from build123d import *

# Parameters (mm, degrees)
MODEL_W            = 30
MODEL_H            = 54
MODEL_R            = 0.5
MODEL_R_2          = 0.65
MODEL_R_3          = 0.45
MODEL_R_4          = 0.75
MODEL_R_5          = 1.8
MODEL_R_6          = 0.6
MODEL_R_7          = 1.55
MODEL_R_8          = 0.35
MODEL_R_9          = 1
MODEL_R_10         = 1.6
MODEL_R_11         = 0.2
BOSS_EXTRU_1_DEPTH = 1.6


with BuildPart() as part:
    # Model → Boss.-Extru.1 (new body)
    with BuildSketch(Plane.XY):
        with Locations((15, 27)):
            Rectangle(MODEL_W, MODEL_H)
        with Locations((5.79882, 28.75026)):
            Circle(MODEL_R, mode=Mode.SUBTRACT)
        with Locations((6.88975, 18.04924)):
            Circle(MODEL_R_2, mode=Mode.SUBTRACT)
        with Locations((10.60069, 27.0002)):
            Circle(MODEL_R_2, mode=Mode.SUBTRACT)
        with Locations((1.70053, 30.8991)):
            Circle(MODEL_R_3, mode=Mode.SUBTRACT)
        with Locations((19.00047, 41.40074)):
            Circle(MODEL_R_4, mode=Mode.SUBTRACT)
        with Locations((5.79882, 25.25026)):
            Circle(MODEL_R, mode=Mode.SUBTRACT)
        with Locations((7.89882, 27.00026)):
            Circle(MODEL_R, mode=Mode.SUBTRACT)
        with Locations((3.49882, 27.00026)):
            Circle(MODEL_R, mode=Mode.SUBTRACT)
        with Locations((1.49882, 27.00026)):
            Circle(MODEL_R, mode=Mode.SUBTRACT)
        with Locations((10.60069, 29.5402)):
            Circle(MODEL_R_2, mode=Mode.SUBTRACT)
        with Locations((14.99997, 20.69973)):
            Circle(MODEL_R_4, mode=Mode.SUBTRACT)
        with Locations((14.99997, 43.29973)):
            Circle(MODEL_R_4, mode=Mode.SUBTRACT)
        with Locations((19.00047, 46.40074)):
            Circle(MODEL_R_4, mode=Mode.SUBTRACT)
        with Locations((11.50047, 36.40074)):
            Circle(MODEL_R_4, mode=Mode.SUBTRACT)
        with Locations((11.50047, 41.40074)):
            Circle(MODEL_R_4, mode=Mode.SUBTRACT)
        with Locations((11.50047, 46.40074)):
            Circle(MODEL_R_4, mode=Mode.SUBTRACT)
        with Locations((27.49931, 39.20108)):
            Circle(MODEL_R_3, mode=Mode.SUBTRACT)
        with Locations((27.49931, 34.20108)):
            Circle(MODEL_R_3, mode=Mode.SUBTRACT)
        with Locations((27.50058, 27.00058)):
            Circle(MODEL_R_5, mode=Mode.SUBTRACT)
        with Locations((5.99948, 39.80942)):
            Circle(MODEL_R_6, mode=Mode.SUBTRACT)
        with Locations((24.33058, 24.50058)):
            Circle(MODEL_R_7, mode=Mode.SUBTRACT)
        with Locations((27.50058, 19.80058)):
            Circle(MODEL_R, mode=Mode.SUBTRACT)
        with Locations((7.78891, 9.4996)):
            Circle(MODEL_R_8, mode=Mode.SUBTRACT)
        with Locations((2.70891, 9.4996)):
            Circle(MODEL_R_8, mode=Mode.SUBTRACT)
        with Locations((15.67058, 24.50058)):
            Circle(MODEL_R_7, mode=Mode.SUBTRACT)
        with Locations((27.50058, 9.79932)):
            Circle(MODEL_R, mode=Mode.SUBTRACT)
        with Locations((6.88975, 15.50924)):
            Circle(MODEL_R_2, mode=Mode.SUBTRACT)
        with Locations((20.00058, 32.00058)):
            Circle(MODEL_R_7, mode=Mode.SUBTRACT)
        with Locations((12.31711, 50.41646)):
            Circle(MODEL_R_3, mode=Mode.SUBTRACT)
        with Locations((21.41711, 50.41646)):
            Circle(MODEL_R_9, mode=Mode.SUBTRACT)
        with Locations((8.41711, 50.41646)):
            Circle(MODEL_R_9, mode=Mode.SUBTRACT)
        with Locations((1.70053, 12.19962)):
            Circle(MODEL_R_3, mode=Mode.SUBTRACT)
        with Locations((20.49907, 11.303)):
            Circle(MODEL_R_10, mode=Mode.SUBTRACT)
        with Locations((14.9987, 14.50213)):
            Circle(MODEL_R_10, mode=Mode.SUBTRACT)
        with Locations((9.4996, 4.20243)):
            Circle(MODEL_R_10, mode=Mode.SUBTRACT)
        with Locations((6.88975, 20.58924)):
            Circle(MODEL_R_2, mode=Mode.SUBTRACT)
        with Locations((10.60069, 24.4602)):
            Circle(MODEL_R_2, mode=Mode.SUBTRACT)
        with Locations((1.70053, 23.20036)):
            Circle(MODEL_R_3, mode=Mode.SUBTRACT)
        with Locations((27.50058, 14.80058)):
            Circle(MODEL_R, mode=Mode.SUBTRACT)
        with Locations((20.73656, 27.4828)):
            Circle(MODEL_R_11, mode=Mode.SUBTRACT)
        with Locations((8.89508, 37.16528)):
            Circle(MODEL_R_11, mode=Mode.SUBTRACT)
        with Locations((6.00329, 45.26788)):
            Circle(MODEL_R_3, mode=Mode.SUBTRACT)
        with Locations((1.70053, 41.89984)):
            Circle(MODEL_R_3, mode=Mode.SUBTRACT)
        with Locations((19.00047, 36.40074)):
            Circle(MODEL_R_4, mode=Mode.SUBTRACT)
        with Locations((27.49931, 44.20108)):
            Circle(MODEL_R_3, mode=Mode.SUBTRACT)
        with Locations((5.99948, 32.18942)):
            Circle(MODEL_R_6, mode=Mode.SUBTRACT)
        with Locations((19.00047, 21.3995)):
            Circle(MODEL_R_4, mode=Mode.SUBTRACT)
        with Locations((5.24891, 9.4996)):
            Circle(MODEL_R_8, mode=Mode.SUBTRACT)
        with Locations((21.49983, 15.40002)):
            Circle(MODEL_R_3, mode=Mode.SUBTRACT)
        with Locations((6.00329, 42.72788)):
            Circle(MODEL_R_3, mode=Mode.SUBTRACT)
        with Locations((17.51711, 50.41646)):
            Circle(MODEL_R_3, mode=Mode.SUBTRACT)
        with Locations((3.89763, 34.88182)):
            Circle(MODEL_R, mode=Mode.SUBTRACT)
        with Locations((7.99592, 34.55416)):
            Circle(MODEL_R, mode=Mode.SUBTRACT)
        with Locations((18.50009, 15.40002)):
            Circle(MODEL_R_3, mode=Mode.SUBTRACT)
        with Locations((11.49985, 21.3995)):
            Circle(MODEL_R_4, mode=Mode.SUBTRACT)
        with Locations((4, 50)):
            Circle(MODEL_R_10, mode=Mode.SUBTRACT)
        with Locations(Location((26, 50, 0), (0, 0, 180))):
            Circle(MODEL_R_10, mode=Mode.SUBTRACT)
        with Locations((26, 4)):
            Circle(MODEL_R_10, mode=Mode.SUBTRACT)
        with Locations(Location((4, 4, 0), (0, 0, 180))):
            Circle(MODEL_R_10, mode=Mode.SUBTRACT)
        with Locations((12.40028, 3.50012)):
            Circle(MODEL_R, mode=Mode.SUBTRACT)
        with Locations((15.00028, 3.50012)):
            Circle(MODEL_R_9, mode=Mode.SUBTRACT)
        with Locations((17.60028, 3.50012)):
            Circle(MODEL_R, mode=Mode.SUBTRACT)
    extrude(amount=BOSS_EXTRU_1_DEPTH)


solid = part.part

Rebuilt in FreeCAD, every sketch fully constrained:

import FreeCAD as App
import Part
import Sketcher
from FreeCAD import Vector

doc = App.newDocument("Part")
body = doc.addObject("PartDesign::Body", "Body")

sketch1 = body.newObject("Sketcher::SketchObject", "Sketch")
sketch1.AttachmentSupport = (doc.getObject("XY_Plane"), [""])
sketch1.MapMode = "FlatFace"
sketch1.addGeometry([
    Part.LineSegment(Vector(0, 54, 0), Vector(0, 0, 0)),
    Part.LineSegment(Vector(0, 0, 0), Vector(30, 0, 0)),
    Part.LineSegment(Vector(30, 0, 0), Vector(30, 54, 0)),
    Part.LineSegment(Vector(30, 54, 0), Vector(0, 54, 0)),
    Part.Circle(Vector(4, 4, 0), Vector(0, 0, 1), 1.6),
    Part.Circle(Vector(2.71, 9.5, 0), Vector(0, 0, 1), 0.35),
    Part.Circle(Vector(1.7, 12.2, 0), Vector(0, 0, 1), 0.45),
    Part.Circle(Vector(5.25, 9.5, 0), Vector(0, 0, 1), 0.35),
    Part.Circle(Vector(7.79, 9.5, 0), Vector(0, 0, 1), 0.35),
    Part.Circle(Vector(9.5, 4.2, 0), Vector(0, 0, 1), 1.6),
    Part.Circle(Vector(12.4, 3.5, 0), Vector(0, 0, 1), 0.5),
    Part.Circle(Vector(15, 3.5, 0), Vector(0, 0, 1), 1),
    Part.Circle(Vector(15, 14.5, 0), Vector(0, 0, 1), 1.6),
    Part.Circle(Vector(6.89, 15.51, 0), Vector(0, 0, 1), 0.65),
    Part.Circle(Vector(6.89, 18.05, 0), Vector(0, 0, 1), 0.65),
    Part.Circle(Vector(6.89, 20.59, 0), Vector(0, 0, 1), 0.65),
    Part.Circle(Vector(1.7, 23.2, 0), Vector(0, 0, 1), 0.45),
    Part.Circle(Vector(5.8, 25.25, 0), Vector(0, 0, 1), 0.5),
    Part.Circle(Vector(15, 20.7, 0), Vector(0, 0, 1), 0.75),
    Part.Circle(Vector(11.5, 21.4, 0), Vector(0, 0, 1), 0.75),
    Part.Circle(Vector(10.6, 24.46, 0), Vector(0, 0, 1), 0.65),
    Part.Circle(Vector(17.6, 3.5, 0), Vector(0, 0, 1), 0.5),
    Part.Circle(Vector(20.5, 11.3, 0), Vector(0, 0, 1), 1.6),
    Part.Circle(Vector(26, 4, 0), Vector(0, 0, 1), 1.6),
    Part.Circle(Vector(27.5, 9.8, 0), Vector(0, 0, 1), 0.5),
    Part.Circle(Vector(18.5, 15.4, 0), Vector(0, 0, 1), 0.45),
    Part.Circle(Vector(21.5, 15.4, 0), Vector(0, 0, 1), 0.45),
    Part.Circle(Vector(15.67, 24.5, 0), Vector(0, 0, 1), 1.55),
    Part.Circle(Vector(19, 21.4, 0), Vector(0, 0, 1), 0.75),
    Part.Circle(Vector(27.5, 14.8, 0), Vector(0, 0, 1), 0.5),
    Part.Circle(Vector(27.5, 19.8, 0), Vector(0, 0, 1), 0.5),
    Part.Circle(Vector(24.33, 24.5, 0), Vector(0, 0, 1), 1.55),
    Part.Circle(Vector(1.5, 27, 0), Vector(0, 0, 1), 0.5),
    Part.Circle(Vector(3.5, 27, 0), Vector(0, 0, 1), 0.5),
    Part.Circle(Vector(1.7, 30.9, 0), Vector(0, 0, 1), 0.45),
    Part.Circle(Vector(5.8, 28.75, 0), Vector(0, 0, 1), 0.5),
    Part.Circle(Vector(7.9, 27, 0), Vector(0, 0, 1), 0.5),
    Part.Circle(Vector(6, 32.19, 0), Vector(0, 0, 1), 0.6),
    Part.Circle(Vector(3.9, 34.88, 0), Vector(0, 0, 1), 0.5),
    Part.Circle(Vector(8, 34.55, 0), Vector(0, 0, 1), 0.5),
    Part.Circle(Vector(10.6, 27, 0), Vector(0, 0, 1), 0.65),
    Part.Circle(Vector(10.6, 29.54, 0), Vector(0, 0, 1), 0.65),
    Part.Circle(Vector(8.9, 37.17, 0), Vector(0, 0, 1), 0.2),
    Part.Circle(Vector(11.5, 36.4, 0), Vector(0, 0, 1), 0.75),
    Part.Circle(Vector(1.7, 41.9, 0), Vector(0, 0, 1), 0.45),
    Part.Circle(Vector(6, 39.81, 0), Vector(0, 0, 1), 0.6),
    Part.Circle(Vector(6, 42.73, 0), Vector(0, 0, 1), 0.45),
    Part.Circle(Vector(6, 45.27, 0), Vector(0, 0, 1), 0.45),
    Part.Circle(Vector(4, 50, 0), Vector(0, 0, 1), 1.6),
    Part.Circle(Vector(11.5, 41.4, 0), Vector(0, 0, 1), 0.75),
    Part.Circle(Vector(15, 43.3, 0), Vector(0, 0, 1), 0.75),
    Part.Circle(Vector(11.5, 46.4, 0), Vector(0, 0, 1), 0.75),
    Part.Circle(Vector(8.42, 50.42, 0), Vector(0, 0, 1), 1),
    Part.Circle(Vector(12.32, 50.42, 0), Vector(0, 0, 1), 0.45),
    Part.Circle(Vector(20.74, 27.48, 0), Vector(0, 0, 1), 0.2),
    Part.Circle(Vector(20, 32, 0), Vector(0, 0, 1), 1.55),
    Part.Circle(Vector(19, 36.4, 0), Vector(0, 0, 1), 0.75),
    Part.Circle(Vector(27.5, 27, 0), Vector(0, 0, 1), 1.8),
    Part.Circle(Vector(27.5, 34.2, 0), Vector(0, 0, 1), 0.45),
    Part.Circle(Vector(27.5, 39.2, 0), Vector(0, 0, 1), 0.45),
    Part.Circle(Vector(19, 41.4, 0), Vector(0, 0, 1), 0.75),
    Part.Circle(Vector(17.52, 50.42, 0), Vector(0, 0, 1), 0.45),
    Part.Circle(Vector(19, 46.4, 0), Vector(0, 0, 1), 0.75),
    Part.Circle(Vector(21.42, 50.42, 0), Vector(0, 0, 1), 1),
    Part.Circle(Vector(27.5, 44.2, 0), Vector(0, 0, 1), 0.45),
    Part.Circle(Vector(26, 50, 0), Vector(0, 0, 1), 1.6),
], False)
sketch1.addConstraint([
    Sketcher.Constraint("Coincident", 0, 2, 1, 1),
    Sketcher.Constraint("Coincident", 1, 2, 2, 1),
    Sketcher.Constraint("Coincident", 2, 2, 3, 1),
    Sketcher.Constraint("Coincident", 3, 2, 0, 1),
    Sketcher.Constraint("Vertical", 0),
    Sketcher.Constraint("Horizontal", 1),
    Sketcher.Constraint("Vertical", 2),
    Sketcher.Constraint("Horizontal", 3),
    Sketcher.Constraint("Coincident", 0, 2, -1, 1),
    Sketcher.Constraint("Equal", 5, 7),
    Sketcher.Constraint("Equal", 7, 8),
    Sketcher.Constraint("Equal", 4, 9),
    Sketcher.Constraint("Equal", 9, 12),
    Sketcher.Constraint("Equal", 13, 14),
    Sketcher.Constraint("Equal", 14, 15),
    Sketcher.Constraint("Equal", 6, 16),
    Sketcher.Constraint("Equal", 10, 17),
    Sketcher.Constraint("Equal", 18, 19),
    Sketcher.Constraint("Equal", 15, 20),
    Sketcher.Constraint("Equal", 17, 21),
    Sketcher.Constraint("Equal", 12, 22),
    Sketcher.Constraint("Equal", 22, 23),
    Sketcher.Constraint("Equal", 21, 24),
    Sketcher.Constraint("Equal", 16, 25),
    Sketcher.Constraint("Equal", 25, 26),
    Sketcher.Constraint("Equal", 19, 28),
    Sketcher.Constraint("Equal", 24, 29),
    Sketcher.Constraint("Equal", 29, 30),
    Sketcher.Constraint("Equal", 27, 31),
    Sketcher.Constraint("Equal", 30, 32),
    Sketcher.Constraint("Equal", 32, 33),
    Sketcher.Constraint("Equal", 26, 34),
    Sketcher.Constraint("Equal", 33, 35),
    Sketcher.Constraint("Equal", 35, 36),
    Sketcher.Constraint("Equal", 36, 38),
    Sketcher.Constraint("Equal", 38, 39),
    Sketcher.Constraint("Equal", 20, 40),
    Sketcher.Constraint("Equal", 40, 41),
    Sketcher.Constraint("Equal", 28, 43),
    Sketcher.Constraint("Equal", 34, 44),
    Sketcher.Constraint("Equal", 37, 45),
    Sketcher.Constraint("Equal", 44, 46),
    Sketcher.Constraint("Equal", 46, 47),
    Sketcher.Constraint("Equal", 23, 48),
    Sketcher.Constraint("Equal", 43, 49),
    Sketcher.Constraint("Equal", 49, 50),
    Sketcher.Constraint("Equal", 50, 51),
    Sketcher.Constraint("Equal", 11, 52),
    Sketcher.Constraint("Equal", 47, 53),
    Sketcher.Constraint("Equal", 42, 54),
    Sketcher.Constraint("Equal", 31, 55),
    Sketcher.Constraint("Equal", 51, 56),
    Sketcher.Constraint("Equal", 53, 58),
    Sketcher.Constraint("Equal", 58, 59),
    Sketcher.Constraint("Equal", 56, 60),
    Sketcher.Constraint("Equal", 59, 61),
    Sketcher.Constraint("Equal", 60, 62),
    Sketcher.Constraint("Equal", 52, 63),
    Sketcher.Constraint("Equal", 61, 64),
    Sketcher.Constraint("Equal", 48, 65),
    Sketcher.Constraint("Horizontal", 5, 3, 7, 3),
    Sketcher.Constraint("Horizontal", 7, 3, 8, 3),
    Sketcher.Constraint("Horizontal", 10, 3, 11, 3),
    Sketcher.Constraint("Horizontal", 11, 3, 21, 3),
    Sketcher.Constraint("Horizontal", 4, 3, 23, 3),
    Sketcher.Constraint("Horizontal", 25, 3, 26, 3),
    Sketcher.Constraint("Horizontal", 19, 3, 28, 3),
    Sketcher.Constraint("Horizontal", 27, 3, 31, 3),
    Sketcher.Constraint("Horizontal", 32, 3, 33, 3),
    Sketcher.Constraint("Horizontal", 33, 3, 36, 3),
    Sketcher.Constraint("Horizontal", 52, 3, 53, 3),
    Sketcher.Constraint("Horizontal", 43, 3, 56, 3),
    Sketcher.Constraint("Horizontal", 49, 3, 60, 3),
    Sketcher.Constraint("Horizontal", 53, 3, 61, 3),
    Sketcher.Constraint("Horizontal", 51, 3, 62, 3),
    Sketcher.Constraint("Horizontal", 61, 3, 63, 3),
    Sketcher.Constraint("Horizontal", 48, 3, 65, 3),
    Sketcher.Constraint("Vertical", 13, 3, 14, 3),
    Sketcher.Constraint("Vertical", 14, 3, 15, 3),
    Sketcher.Constraint("Vertical", 6, 3, 16, 3),
    Sketcher.Constraint("Vertical", 24, 3, 29, 3),
    Sketcher.Constraint("Vertical", 29, 3, 30, 3),
    Sketcher.Constraint("Vertical", 16, 3, 34, 3),
    Sketcher.Constraint("Vertical", 17, 3, 35, 3),
    Sketcher.Constraint("Vertical", 20, 3, 40, 3),
    Sketcher.Constraint("Vertical", 40, 3, 41, 3),
    Sketcher.Constraint("Vertical", 34, 3, 44, 3),
    Sketcher.Constraint("Vertical", 37, 3, 45, 3),
    Sketcher.Constraint("Vertical", 46, 3, 47, 3),
    Sketcher.Constraint("Vertical", 4, 3, 48, 3),
    Sketcher.Constraint("Vertical", 43, 3, 49, 3),
    Sketcher.Constraint("Vertical", 18, 3, 50, 3),
    Sketcher.Constraint("Vertical", 49, 3, 51, 3),
    Sketcher.Constraint("Vertical", 28, 3, 56, 3),
    Sketcher.Constraint("Vertical", 30, 3, 57, 3),
    Sketcher.Constraint("Vertical", 58, 3, 59, 3),
    Sketcher.Constraint("Vertical", 56, 3, 60, 3),
    Sketcher.Constraint("Vertical", 60, 3, 62, 3),
    Sketcher.Constraint("Vertical", 59, 3, 64, 3),
    Sketcher.Constraint("Vertical", 23, 3, 65, 3),
    Sketcher.Constraint("Diameter", 10, 1.0),
    Sketcher.Constraint("Diameter", 11, 2.0),
    Sketcher.Constraint("Diameter", 4, 3.2),
    Sketcher.Constraint("Diameter", 5, 0.7),
    Sketcher.Constraint("Diameter", 6, 0.9),
    Sketcher.Constraint("Diameter", 13, 1.3),
    Sketcher.Constraint("Diameter", 18, 1.5),
    Sketcher.Constraint("Diameter", 27, 3.1),
    Sketcher.Constraint("Diameter", 37, 1.2),
    Sketcher.Constraint("Diameter", 42, 0.4),
    Sketcher.Constraint("Diameter", 57, 3.6),
    Sketcher.Constraint("DistanceX", 1, 1, 1, 2, 30.0),
    Sketcher.Constraint("DistanceY", 0, 2, 0, 1, 54.0),
    Sketcher.Constraint("DistanceX", -1, 1, 4, 3, 4.0),
    Sketcher.Constraint("DistanceY", -1, 1, 4, 3, 4.0),
    Sketcher.Constraint("DistanceX", -1, 1, 23, 3, 26.0),
    Sketcher.Constraint("DistanceY", -1, 1, 48, 3, 50.0),
    Sketcher.Constraint("DistanceY", -1, 1, 22, 3, 11.303),
    Sketcher.Constraint("DistanceY", -1, 1, 5, 3, 9.4996),
    Sketcher.Constraint("DistanceX", -1, 1, 9, 3, 9.4996),
    Sketcher.Constraint("DistanceX", -1, 1, 12, 3, 14.9987),
    Sketcher.Constraint("DistanceY", -1, 1, 19, 3, 21.3995),
    Sketcher.Constraint("DistanceY", -1, 1, 20, 3, 24.4602),
    Sketcher.Constraint("DistanceY", -1, 1, 34, 3, 30.8991),
    Sketcher.Constraint("DistanceY", -1, 1, 40, 3, 27.0002),
    Sketcher.Constraint("DistanceY", -1, 1, 41, 3, 29.5402),
    Sketcher.Constraint("DistanceY", -1, 1, 54, 3, 27.4828),
    Sketcher.Constraint("DistanceX", -1, 1, 5, 3, 2.70891),
    Sketcher.Constraint("DistanceX", -1, 1, 6, 3, 1.70053),
    Sketcher.Constraint("DistanceY", -1, 1, 6, 3, 12.19962),
    Sketcher.Constraint("DistanceX", -1, 1, 7, 3, 5.24891),
    Sketcher.Constraint("DistanceX", -1, 1, 8, 3, 7.78891),
    Sketcher.Constraint("DistanceY", -1, 1, 9, 3, 4.20243),
    Sketcher.Constraint("DistanceX", -1, 1, 10, 3, 12.40028),
    Sketcher.Constraint("DistanceY", -1, 1, 10, 3, 3.50012),
    Sketcher.Constraint("DistanceX", -1, 1, 11, 3, 15.00028),
    Sketcher.Constraint("DistanceY", -1, 1, 12, 3, 14.50213),
    Sketcher.Constraint("DistanceX", -1, 1, 13, 3, 6.88975),
    Sketcher.Constraint("DistanceY", -1, 1, 13, 3, 15.50924),
    Sketcher.Constraint("DistanceY", -1, 1, 14, 3, 18.04924),
    Sketcher.Constraint("DistanceY", -1, 1, 15, 3, 20.58924),
    Sketcher.Constraint("DistanceY", -1, 1, 16, 3, 23.20036),
    Sketcher.Constraint("DistanceX", -1, 1, 17, 3, 5.79882),
    Sketcher.Constraint("DistanceY", -1, 1, 17, 3, 25.25026),
    Sketcher.Constraint("DistanceX", -1, 1, 18, 3, 14.99997),
    Sketcher.Constraint("DistanceY", -1, 1, 18, 3, 20.69973),
    Sketcher.Constraint("DistanceX", -1, 1, 19, 3, 11.49985),
    Sketcher.Constraint("DistanceX", -1, 1, 20, 3, 10.60069),
    Sketcher.Constraint("DistanceX", -1, 1, 21, 3, 17.60028),
    Sketcher.Constraint("DistanceX", -1, 1, 22, 3, 20.49907),
    Sketcher.Constraint("DistanceX", -1, 1, 24, 3, 27.50058),
    Sketcher.Constraint("DistanceY", -1, 1, 24, 3, 9.79932),
    Sketcher.Constraint("DistanceX", -1, 1, 25, 3, 18.50009),
    Sketcher.Constraint("DistanceY", -1, 1, 25, 3, 15.40002),
    Sketcher.Constraint("DistanceX", -1, 1, 26, 3, 21.49983),
    Sketcher.Constraint("DistanceX", -1, 1, 27, 3, 15.67058),
    Sketcher.Constraint("DistanceY", -1, 1, 27, 3, 24.50058),
    Sketcher.Constraint("DistanceX", -1, 1, 28, 3, 19.00047),
    Sketcher.Constraint("DistanceY", -1, 1, 29, 3, 14.80058),
    Sketcher.Constraint("DistanceY", -1, 1, 30, 3, 19.80058),
    Sketcher.Constraint("DistanceX", -1, 1, 31, 3, 24.33058),
    Sketcher.Constraint("DistanceX", -1, 1, 32, 3, 1.49882),
    Sketcher.Constraint("DistanceY", -1, 1, 32, 3, 27.00026),
    Sketcher.Constraint("DistanceX", -1, 1, 33, 3, 3.49882),
    Sketcher.Constraint("DistanceY", -1, 1, 35, 3, 28.75026),
    Sketcher.Constraint("DistanceX", -1, 1, 36, 3, 7.89882),
    Sketcher.Constraint("DistanceX", -1, 1, 37, 3, 5.99948),
    Sketcher.Constraint("DistanceY", -1, 1, 37, 3, 32.18942),
    Sketcher.Constraint("DistanceX", -1, 1, 38, 3, 3.89763),
    Sketcher.Constraint("DistanceY", -1, 1, 38, 3, 34.88182),
    Sketcher.Constraint("DistanceX", -1, 1, 39, 3, 7.99592),
    Sketcher.Constraint("DistanceY", -1, 1, 39, 3, 34.55416),
    Sketcher.Constraint("DistanceX", -1, 1, 42, 3, 8.89508),
    Sketcher.Constraint("DistanceY", -1, 1, 42, 3, 37.16528),
    Sketcher.Constraint("DistanceX", -1, 1, 43, 3, 11.50047),
    Sketcher.Constraint("DistanceY", -1, 1, 43, 3, 36.40074),
    Sketcher.Constraint("DistanceY", -1, 1, 44, 3, 41.89984),
    Sketcher.Constraint("DistanceY", -1, 1, 45, 3, 39.80942),
    Sketcher.Constraint("DistanceX", -1, 1, 46, 3, 6.00329),
    Sketcher.Constraint("DistanceY", -1, 1, 46, 3, 42.72788),
    Sketcher.Constraint("DistanceY", -1, 1, 47, 3, 45.26788),
    Sketcher.Constraint("DistanceY", -1, 1, 49, 3, 41.40074),
    Sketcher.Constraint("DistanceY", -1, 1, 50, 3, 43.29973),
    Sketcher.Constraint("DistanceY", -1, 1, 51, 3, 46.40074),
    Sketcher.Constraint("DistanceX", -1, 1, 52, 3, 8.41711),
    Sketcher.Constraint("DistanceY", -1, 1, 52, 3, 50.41646),
    Sketcher.Constraint("DistanceX", -1, 1, 53, 3, 12.31711),
    Sketcher.Constraint("DistanceX", -1, 1, 54, 3, 20.73656),
    Sketcher.Constraint("DistanceX", -1, 1, 55, 3, 20.00058),
    Sketcher.Constraint("DistanceY", -1, 1, 55, 3, 32.00058),
    Sketcher.Constraint("DistanceY", -1, 1, 57, 3, 27.00058),
    Sketcher.Constraint("DistanceX", -1, 1, 58, 3, 27.49931),
    Sketcher.Constraint("DistanceY", -1, 1, 58, 3, 34.20108),
    Sketcher.Constraint("DistanceY", -1, 1, 59, 3, 39.20108),
    Sketcher.Constraint("DistanceX", -1, 1, 61, 3, 17.51711),
    Sketcher.Constraint("DistanceX", -1, 1, 63, 3, 21.41711),
    Sketcher.Constraint("DistanceY", -1, 1, 64, 3, 44.20108),
])
pad1 = body.newObject("PartDesign::Pad", "Pad")
pad1.Profile = sketch1
pad1.Length = 1.6

doc.recompute()
